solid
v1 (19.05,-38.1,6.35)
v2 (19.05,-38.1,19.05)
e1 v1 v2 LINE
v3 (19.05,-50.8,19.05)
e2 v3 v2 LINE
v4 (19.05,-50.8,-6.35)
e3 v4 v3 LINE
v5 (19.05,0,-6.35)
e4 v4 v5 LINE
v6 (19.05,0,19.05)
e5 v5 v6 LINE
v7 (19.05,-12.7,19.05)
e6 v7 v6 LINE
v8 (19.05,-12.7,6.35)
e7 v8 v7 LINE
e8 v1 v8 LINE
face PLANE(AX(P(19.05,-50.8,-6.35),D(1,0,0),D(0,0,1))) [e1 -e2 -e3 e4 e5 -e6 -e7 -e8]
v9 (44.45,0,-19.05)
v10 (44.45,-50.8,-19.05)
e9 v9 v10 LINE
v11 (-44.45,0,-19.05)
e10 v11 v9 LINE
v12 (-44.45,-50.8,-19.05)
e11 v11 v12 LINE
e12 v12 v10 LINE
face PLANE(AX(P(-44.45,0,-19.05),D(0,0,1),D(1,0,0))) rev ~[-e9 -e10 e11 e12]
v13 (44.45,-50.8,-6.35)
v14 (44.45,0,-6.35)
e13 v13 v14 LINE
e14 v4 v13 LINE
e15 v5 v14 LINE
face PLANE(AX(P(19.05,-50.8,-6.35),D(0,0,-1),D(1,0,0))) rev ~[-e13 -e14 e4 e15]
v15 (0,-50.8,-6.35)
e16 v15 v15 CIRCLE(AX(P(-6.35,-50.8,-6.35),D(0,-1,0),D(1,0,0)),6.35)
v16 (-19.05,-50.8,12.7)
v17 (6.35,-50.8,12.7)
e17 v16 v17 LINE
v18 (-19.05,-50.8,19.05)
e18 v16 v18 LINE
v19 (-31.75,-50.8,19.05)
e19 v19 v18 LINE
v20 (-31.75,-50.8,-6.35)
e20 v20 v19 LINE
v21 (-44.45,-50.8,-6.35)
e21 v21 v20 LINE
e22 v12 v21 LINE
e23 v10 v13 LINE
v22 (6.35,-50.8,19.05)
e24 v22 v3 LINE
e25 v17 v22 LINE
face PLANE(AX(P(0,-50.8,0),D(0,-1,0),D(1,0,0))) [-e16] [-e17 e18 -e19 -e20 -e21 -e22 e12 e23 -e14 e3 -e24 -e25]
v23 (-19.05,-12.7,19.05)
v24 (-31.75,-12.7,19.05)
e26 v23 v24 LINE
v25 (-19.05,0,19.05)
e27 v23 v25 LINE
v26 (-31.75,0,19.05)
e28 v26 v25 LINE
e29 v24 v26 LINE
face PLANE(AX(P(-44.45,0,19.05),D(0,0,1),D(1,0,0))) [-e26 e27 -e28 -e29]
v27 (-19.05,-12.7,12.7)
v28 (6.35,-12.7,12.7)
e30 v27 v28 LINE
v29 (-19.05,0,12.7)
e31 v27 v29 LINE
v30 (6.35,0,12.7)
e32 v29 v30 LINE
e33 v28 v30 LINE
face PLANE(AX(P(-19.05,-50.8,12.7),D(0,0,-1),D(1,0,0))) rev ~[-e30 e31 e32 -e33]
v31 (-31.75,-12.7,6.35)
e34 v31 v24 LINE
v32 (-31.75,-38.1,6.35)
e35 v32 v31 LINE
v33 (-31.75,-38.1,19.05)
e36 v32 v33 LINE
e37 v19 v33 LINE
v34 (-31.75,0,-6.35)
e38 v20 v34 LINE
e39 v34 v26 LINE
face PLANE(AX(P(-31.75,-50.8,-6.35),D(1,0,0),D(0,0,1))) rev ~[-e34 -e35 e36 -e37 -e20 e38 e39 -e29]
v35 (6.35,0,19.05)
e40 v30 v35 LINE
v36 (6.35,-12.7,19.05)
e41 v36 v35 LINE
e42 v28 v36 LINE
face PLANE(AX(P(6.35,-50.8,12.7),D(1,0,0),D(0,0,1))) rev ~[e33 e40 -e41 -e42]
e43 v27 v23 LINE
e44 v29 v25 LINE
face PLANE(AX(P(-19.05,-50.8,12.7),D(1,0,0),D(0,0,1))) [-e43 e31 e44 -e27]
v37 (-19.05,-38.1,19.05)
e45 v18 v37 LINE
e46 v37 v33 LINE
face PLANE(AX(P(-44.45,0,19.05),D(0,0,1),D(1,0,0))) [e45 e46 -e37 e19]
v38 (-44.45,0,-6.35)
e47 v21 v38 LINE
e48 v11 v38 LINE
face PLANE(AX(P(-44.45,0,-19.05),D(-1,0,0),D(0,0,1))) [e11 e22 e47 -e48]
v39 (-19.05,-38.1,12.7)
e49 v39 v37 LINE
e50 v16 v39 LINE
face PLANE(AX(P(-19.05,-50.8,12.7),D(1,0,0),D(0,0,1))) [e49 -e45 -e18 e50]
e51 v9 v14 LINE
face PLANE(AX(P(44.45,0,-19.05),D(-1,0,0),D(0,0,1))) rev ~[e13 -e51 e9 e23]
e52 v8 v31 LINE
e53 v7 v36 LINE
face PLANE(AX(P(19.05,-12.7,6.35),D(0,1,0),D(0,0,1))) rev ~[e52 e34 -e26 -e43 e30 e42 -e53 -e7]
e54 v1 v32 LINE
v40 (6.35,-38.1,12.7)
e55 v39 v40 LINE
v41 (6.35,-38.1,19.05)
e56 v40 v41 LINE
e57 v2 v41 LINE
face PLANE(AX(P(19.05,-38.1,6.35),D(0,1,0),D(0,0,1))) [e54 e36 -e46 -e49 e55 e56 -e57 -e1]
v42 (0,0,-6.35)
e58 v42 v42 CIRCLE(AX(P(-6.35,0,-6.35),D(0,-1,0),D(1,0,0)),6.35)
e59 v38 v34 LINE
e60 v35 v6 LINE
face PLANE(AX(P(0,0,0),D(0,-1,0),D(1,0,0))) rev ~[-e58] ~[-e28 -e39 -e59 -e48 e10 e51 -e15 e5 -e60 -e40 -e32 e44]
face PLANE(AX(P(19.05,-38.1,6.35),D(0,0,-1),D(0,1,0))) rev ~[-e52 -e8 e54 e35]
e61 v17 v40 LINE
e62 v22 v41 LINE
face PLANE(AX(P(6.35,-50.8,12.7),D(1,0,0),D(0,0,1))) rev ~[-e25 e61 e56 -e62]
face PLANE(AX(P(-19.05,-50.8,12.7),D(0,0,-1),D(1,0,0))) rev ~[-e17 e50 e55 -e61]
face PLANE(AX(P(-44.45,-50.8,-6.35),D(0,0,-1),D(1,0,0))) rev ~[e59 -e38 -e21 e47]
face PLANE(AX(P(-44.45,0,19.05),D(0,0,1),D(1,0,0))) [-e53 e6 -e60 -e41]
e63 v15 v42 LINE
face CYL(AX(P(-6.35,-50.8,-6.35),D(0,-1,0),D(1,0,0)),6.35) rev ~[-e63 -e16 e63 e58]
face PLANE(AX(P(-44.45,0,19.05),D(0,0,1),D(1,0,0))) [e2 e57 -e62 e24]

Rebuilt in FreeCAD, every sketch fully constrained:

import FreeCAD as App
import Part
import Sketcher
from FreeCAD import Vector
Q = App.Units.Quantity

doc = App.newDocument("Part")
params = doc.addObject("Spreadsheet::Sheet", "Params")
for row, (alias, value) in enumerate([
    ("sketch1_width", "3.5 in"),
    ("sketch1_height", "1.5 in"),
    ("pad1_length", "2 in"),
    ("sketch2_height", "1 in"),
    ("sketch2_width", "0.5 in"),
    ("sketch3_width", "1 in"),
    ("sketch4_width", "1 in"),
    ("sketch4_height", "0.25 in"),
    ("sketch5_diameter", "0.5 in"),
    ("sketch6_width", "1 in"),
    ("sketch6_height", "0.5 in"),
], start=1):
    params.set(f"A{row}", alias)
    params.set(f"B{row}", "=" + value)
    params.setAlias(f"B{row}", alias)

body = doc.addObject("PartDesign::Body", "Body")

# Sketch on XZ plane
sketch1 = body.newObject("Sketcher::SketchObject", "Sketch")
sketch1.AttachmentSupport = (doc.getObject("XZ_Plane"), [""])
sketch1.MapMode = "FlatFace"
sketch1.addGeometry(Part.LineSegment(Vector(-44, 19, 0), Vector(-44, -19, 0)), False)
sketch1.addGeometry(Part.LineSegment(Vector(-44, -19, 0), Vector(44, -19, 0)), False)
sketch1.addGeometry(Part.LineSegment(Vector(44, -19, 0), Vector(44, 19, 0)), False)
sketch1.addGeometry(Part.LineSegment(Vector(44, 19, 0), Vector(-44, 19, 0)), False)
sketch1.addConstraint(Sketcher.Constraint("Coincident", 0, 2, 1, 1))
sketch1.addConstraint(Sketcher.Constraint("Coincident", 1, 2, 2, 1))
sketch1.addConstraint(Sketcher.Constraint("Coincident", 2, 2, 3, 1))
sketch1.addConstraint(Sketcher.Constraint("Coincident", 3, 2, 0, 1))
sketch1.addConstraint(Sketcher.Constraint("Vertical", 0))
sketch1.addConstraint(Sketcher.Constraint("Horizontal", 1))
sketch1.addConstraint(Sketcher.Constraint("Vertical", 2))
sketch1.addConstraint(Sketcher.Constraint("Horizontal", 3))
sketch1.addConstraint(Sketcher.Constraint("Symmetric", 0, 2, 2, 2, -1, 1))
sketch1.addConstraint(Sketcher.Constraint("DistanceX", 1, 1, 1, 2, Q("3.5 in")))
sketch1.addConstraint(Sketcher.Constraint("DistanceY", 0, 2, 0, 1, Q("1.5 in")))
sketch1.setExpression("Constraints[9]", "Params.sketch1_width")
sketch1.setExpression("Constraints[10]", "Params.sketch1_height")
pad1 = body.newObject("PartDesign::Pad", "Pad")
pad1.Profile = sketch1
pad1.setExpression("Length", "Params.pad1_length")

# Sketch on XZ plane
sketch2 = body.newObject("Sketcher::SketchObject", "Sketch001")
sketch2.AttachmentSupport = (doc.getObject("XZ_Plane"), [""])
sketch2.MapMode = "FlatFace"
sketch2.AttachmentOffset = App.Placement(Vector(0, 0, 2 * 25.4), App.Rotation())
sketch2.addGeometry(Part.LineSegment(Vector(-44, 19, 0), Vector(-44, -6, 0)), False)
sketch2.addGeometry(Part.LineSegment(Vector(-44, -6, 0), Vector(-32, -6, 0)), False)
sketch2.addGeometry(Part.LineSegment(Vector(-32, -6, 0), Vector(-32, 19, 0)), False)
sketch2.addGeometry(Part.LineSegment(Vector(-32, 19, 0), Vector(-44, 19, 0)), False)
sketch2.addConstraint(Sketcher.Constraint("Coincident", 0, 2, 1, 1))
sketch2.addConstraint(Sketcher.Constraint("Coincident", 1, 2, 2, 1))
sketch2.addConstraint(Sketcher.Constraint("Coincident", 2, 2, 3, 1))
sketch2.addConstraint(Sketcher.Constraint("Coincident", 3, 2, 0, 1))
sketch2.addConstraint(Sketcher.Constraint("Vertical", 0))
sketch2.addConstraint(Sketcher.Constraint("Horizontal", 1))
sketch2.addConstraint(Sketcher.Constraint("Vertical", 2))
sketch2.addConstraint(Sketcher.Constraint("Horizontal", 3))
sketch2.addConstraint(Sketcher.Constraint("DistanceY", 0, 2, 0, 1, Q("1 in")))
sketch2.addConstraint(Sketcher.Constraint("DistanceX", 1, 1, 1, 2, Q("0.5 in")))
sketch2.addConstraint(Sketcher.Constraint("DistanceX", 0, 2, -1, 1, Q("1.75 in")))
sketch2.addConstraint(Sketcher.Constraint("DistanceY", 0, 2, -1, 1, Q("0.25 in")))
sketch2.setExpression("Constraints[8]", "Params.sketch2_height")
sketch2.setExpression("Constraints[9]", "Params.sketch2_width")
pocket1 = body.newObject("PartDesign::Pocket", "Pocket")
pocket1.Profile = sketch2
pocket1.Type = "ThroughAll"

# Sketch on XZ plane
sketch3 = body.newObject("Sketcher::SketchObject", "Sketch002")
sketch3.AttachmentSupport = (doc.getObject("XZ_Plane"), [""])
sketch3.MapMode = "FlatFace"
sketch3.AttachmentOffset = App.Placement(Vector(0, 0, 2 * 25.4), App.Rotation())
sketch3.addGeometry(Part.LineSegment(Vector(19, 19, 0), Vector(19, -6, 0)), False)
sketch3.addGeometry(Part.LineSegment(Vector(19, -6, 0), Vector(44, -6, 0)), False)
sketch3.addGeometry(Part.LineSegment(Vector(44, -6, 0), Vector(44, 19, 0)), False)
sketch3.addGeometry(Part.LineSegment(Vector(44, 19, 0), Vector(19, 19, 0)), False)
sketch3.addConstraint(Sketcher.Constraint("Coincident", 0, 2, 1, 1))
sketch3.addConstraint(Sketcher.Constraint("Coincident", 1, 2, 2, 1))
sketch3.addConstraint(Sketcher.Constraint("Coincident", 2, 2, 3, 1))
sketch3.addConstraint(Sketcher.Constraint("Coincident", 3, 2, 0, 1))
sketch3.addConstraint(Sketcher.Constraint("Vertical", 0))
sketch3.addConstraint(Sketcher.Constraint("Horizontal", 1))
sketch3.addConstraint(Sketcher.Constraint("Vertical", 2))
sketch3.addConstraint(Sketcher.Constraint("Horizontal", 3))
sketch3.addConstraint(Sketcher.Constraint("Equal", 3, 0))
sketch3.addConstraint(Sketcher.Constraint("DistanceX", 1, 1, 1, 2, Q("1 in")))
sketch3.addConstraint(Sketcher.Constraint("DistanceX", -1, 1, 0, 2, Q("0.75 in")))
sketch3.addConstraint(Sketcher.Constraint("DistanceY", 0, 2, -1, 1, Q("0.25 in")))
sketch3.setExpression("Constraints[9]", "Params.sketch3_width")
pocket2 = body.newObject("PartDesign::Pocket", "Pocket001")
pocket2.Profile = sketch3
pocket2.Type = "ThroughAll"

# Sketch on XZ plane
sketch4 = body.newObject("Sketcher::SketchObject", "Sketch003")
sketch4.AttachmentSupport = (doc.getObject("XZ_Plane"), [""])
sketch4.MapMode = "FlatFace"
sketch4.AttachmentOffset = App.Placement(Vector(0, 0, 2 * 25.4), App.Rotation())
sketch4.addGeometry(Part.LineSegment(Vector(-19, 19, 0), Vector(-19, 13, 0)), False)
sketch4.addGeometry(Part.LineSegment(Vector(-19, 13, 0), Vector(6, 13, 0)), False)
sketch4.addGeometry(Part.LineSegment(Vector(6, 13, 0), Vector(6, 19, 0)), False)
sketch4.addGeometry(Part.LineSegment(Vector(6, 19, 0), Vector(-19, 19, 0)), False)
sketch4.addConstraint(Sketcher.Constraint("Coincident", 0, 2, 1, 1))
sketch4.addConstraint(Sketcher.Constraint("Coincident", 1, 2, 2, 1))
sketch4.addConstraint(Sketcher.Constraint("Coincident", 2, 2, 3, 1))
sketch4.addConstraint(Sketcher.Constraint("Coincident", 3, 2, 0, 1))
sketch4.addConstraint(Sketcher.Constraint("Vertical", 0))
sketch4.addConstraint(Sketcher.Constraint("Horizontal", 1))
sketch4.addConstraint(Sketcher.Constraint("Vertical", 2))
sketch4.addConstraint(Sketcher.Constraint("Horizontal", 3))
sketch4.addConstraint(Sketcher.Constraint("DistanceX", 1, 1, 1, 2, Q("1 in")))
sketch4.addConstraint(Sketcher.Constraint("DistanceY", 0, 2, 0, 1, Q("0.25 in")))
sketch4.addConstraint(Sketcher.Constraint("DistanceY", -1, 1, 0, 2, Q("0.5 in")))
sketch4.addConstraint(Sketcher.Constraint("DistanceX", 0, 2, -1, 1, Q("0.75 in")))
sketch4.setExpression("Constraints[8]", "Params.sketch4_width")
sketch4.setExpression("Constraints[9]", "Params.sketch4_height")
pocket3 = body.newObject("PartDesign::Pocket", "Pocket002")
pocket3.Profile = sketch4
pocket3.Type = "ThroughAll"

# Sketch on XZ plane
sketch5 = body.newObject("Sketcher::SketchObject", "Sketch004")
sketch5.AttachmentSupport = (doc.getObject("XZ_Plane"), [""])
sketch5.MapMode = "FlatFace"
sketch5.AttachmentOffset = App.Placement(Vector(0, 0, 2 * 25.4), App.Rotation())
sketch5.addGeometry(Part.Circle(Vector(-6, -6, 0), Vector(0, 0, 1), 6), False)
sketch5.addConstraint(Sketcher.Constraint("Diameter", 0, Q("0.5 in")))
sketch5.addConstraint(Sketcher.Constraint("DistanceX", 0, 3, -1, 1, Q("0.25 in")))
sketch5.addConstraint(Sketcher.Constraint("DistanceY", 0, 3, -1, 1, Q("0.25 in")))
sketch5.setExpression("Constraints[0]", "Params.sketch5_diameter")
pocket4 = body.newObject("PartDesign::Pocket", "Pocket003")
pocket4.Profile = sketch5
pocket4.Type = "ThroughAll"

# Sketch on YZ plane
sketch6 = body.newObject("Sketcher::SketchObject", "Sketch005")
sketch6.AttachmentSupport = (doc.getObject("YZ_Plane"), [""])
sketch6.MapMode = "FlatFace"
sketch6.AttachmentOffset = App.Placement(Vector(0, 0, 0.75 * 25.4), App.Rotation())
sketch6.addGeometry(Part.LineSegment(Vector(-38, 19, 0), Vector(-38, 6, 0)), False)
sketch6.addGeometry(Part.LineSegment(Vector(-38, 6, 0), Vector(-13, 6, 0)), False)
sketch6.addGeometry(Part.LineSegment(Vector(-13, 6, 0), Vector(-13, 19, 0)), False)
sketch6.addGeometry(Part.LineSegment(Vector(-13, 19, 0), Vector(-38, 19, 0)), False)
sketch6.addConstraint(Sketcher.Constraint("Coincident", 0, 2, 1, 1))
sketch6.addConstraint(Sketcher.Constraint("Coincident", 1, 2, 2, 1))
sketch6.addConstraint(Sketcher.Constraint("Coincident", 2, 2, 3, 1))
sketch6.addConstraint(Sketcher.Constraint("Coincident", 3, 2, 0, 1))
sketch6.addConstraint(Sketcher.Constraint("Vertical", 0))
sketch6.addConstraint(Sketcher.Constraint("Horizontal", 1))
sketch6.addConstraint(Sketcher.Constraint("Vertical", 2))
sketch6.addConstraint(Sketcher.Constraint("Horizontal", 3))
sketch6.addConstraint(Sketcher.Constraint("DistanceX", 1, 1, 1, 2, Q("1 in")))
sketch6.addConstraint(Sketcher.Constraint("DistanceY", 0, 2, 0, 1, Q("0.5 in")))
sketch6.addConstraint(Sketcher.Constraint("DistanceX", 0, 2, -1, 1, Q("1.5 in")))
sketch6.addConstraint(Sketcher.Constraint("DistanceY", -1, 1, 0, 2, Q("0.25 in")))
sketch6.setExpression("Constraints[8]", "Params.sketch6_width")
sketch6.setExpression("Constraints[9]", "Params.sketch6_height")
pocket5 = body.newObject("PartDesign::Pocket", "Pocket004")
pocket5.Profile = sketch6
pocket5.Type = "ThroughAll"

doc.recompute()
